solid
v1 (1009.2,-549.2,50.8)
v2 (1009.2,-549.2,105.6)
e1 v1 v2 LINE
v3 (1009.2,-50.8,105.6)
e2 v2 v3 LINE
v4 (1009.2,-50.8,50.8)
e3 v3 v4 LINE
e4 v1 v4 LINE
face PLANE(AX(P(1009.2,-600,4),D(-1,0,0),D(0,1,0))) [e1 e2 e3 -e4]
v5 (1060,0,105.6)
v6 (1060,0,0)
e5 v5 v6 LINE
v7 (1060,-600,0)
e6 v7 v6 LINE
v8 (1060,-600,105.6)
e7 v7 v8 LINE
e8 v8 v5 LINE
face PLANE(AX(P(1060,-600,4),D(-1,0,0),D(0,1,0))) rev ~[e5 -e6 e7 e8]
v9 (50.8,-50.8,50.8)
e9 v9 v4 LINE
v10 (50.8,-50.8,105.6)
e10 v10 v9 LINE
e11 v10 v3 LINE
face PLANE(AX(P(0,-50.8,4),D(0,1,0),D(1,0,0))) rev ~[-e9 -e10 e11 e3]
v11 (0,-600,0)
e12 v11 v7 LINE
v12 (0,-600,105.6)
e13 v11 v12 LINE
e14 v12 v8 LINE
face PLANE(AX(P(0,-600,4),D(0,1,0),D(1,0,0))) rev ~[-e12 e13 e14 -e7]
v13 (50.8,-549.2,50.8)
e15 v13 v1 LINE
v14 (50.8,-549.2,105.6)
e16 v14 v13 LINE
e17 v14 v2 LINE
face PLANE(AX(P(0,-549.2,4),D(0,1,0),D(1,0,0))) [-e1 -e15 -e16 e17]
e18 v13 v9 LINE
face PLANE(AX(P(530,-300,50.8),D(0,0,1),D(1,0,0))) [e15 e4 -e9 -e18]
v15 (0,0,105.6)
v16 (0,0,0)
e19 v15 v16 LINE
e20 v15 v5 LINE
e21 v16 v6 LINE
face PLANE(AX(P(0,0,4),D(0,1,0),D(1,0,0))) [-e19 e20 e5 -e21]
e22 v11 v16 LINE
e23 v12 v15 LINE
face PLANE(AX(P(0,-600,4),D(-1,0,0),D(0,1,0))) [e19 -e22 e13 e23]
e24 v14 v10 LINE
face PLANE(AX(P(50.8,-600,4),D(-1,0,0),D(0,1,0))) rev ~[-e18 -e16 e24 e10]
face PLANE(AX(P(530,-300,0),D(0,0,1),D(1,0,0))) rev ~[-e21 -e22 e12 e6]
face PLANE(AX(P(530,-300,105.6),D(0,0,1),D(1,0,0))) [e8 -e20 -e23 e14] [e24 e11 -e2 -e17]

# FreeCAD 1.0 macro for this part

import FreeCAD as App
import Part
import Sketcher
from FreeCAD import Vector


def faces_at(feature, points):
    """Names of the faces that lie closest to the given points."""
    faces = feature.Shape.Faces
    near = lambda p: min(range(len(faces)), key=lambda i: faces[i].distToShape(Part.Vertex(*p))[0])
    return sorted({f"Face{near(p) + 1}" for p in points})

doc = App.newDocument("Part")
body = doc.addObject("PartDesign::Body", "Body")

# Sketch on XY plane
sketch1 = body.newObject("Sketcher::SketchObject", "Sketch")
sketch1.AttachmentSupport = (doc.getObject("XY_Plane"), [""])
sketch1.MapMode = "FlatFace"
sketch1.addGeometry([
    Part.LineSegment(Vector(0, 0, 0), Vector(0, -600, 0)),
    Part.LineSegment(Vector(0, -600, 0), Vector(1060, -600, 0)),
    Part.LineSegment(Vector(1060, -600, 0), Vector(1060, 0, 0)),
    Part.LineSegment(Vector(1060, 0, 0), Vector(0, 0, 0)),
], False)
sketch1.addConstraint([
    Sketcher.Constraint("Coincident", 0, 2, 1, 1),
    Sketcher.Constraint("Coincident", 1, 2, 2, 1),
    Sketcher.Constraint("Coincident", 2, 2, 3, 1),
    Sketcher.Constraint("Coincident", 3, 2, 0, 1),
    Sketcher.Constraint("Vertical", 0),
    Sketcher.Constraint("Horizontal", 1),
    Sketcher.Constraint("Vertical", 2),
    Sketcher.Constraint("Horizontal", 3),
    Sketcher.Constraint("Coincident", 3, 2, -1, 1),
    Sketcher.Constraint("DistanceX", 1, 1, 1, 2, 1060.0),
    Sketcher.Constraint("DistanceY", 0, 2, 0, 1, 600.0),
])
pad1 = body.newObject("PartDesign::Pad", "Pad")
pad1.Profile = sketch1
pad1.Length = 4

# Sketch on XY plane
sketch2 = body.newObject("Sketcher::SketchObject", "Sketch001")
sketch2.AttachmentSupport = (doc.getObject("XY_Plane"), [""])
sketch2.MapMode = "FlatFace"
sketch2.AttachmentOffset = App.Placement(Vector(0, 0, 4), App.Rotation())
sketch2.addGeometry([
    Part.LineSegment(Vector(0, 0, 0), Vector(0, -600, 0)),
    Part.LineSegment(Vector(0, -600, 0), Vector(1060, -600, 0)),
    Part.LineSegment(Vector(1060, -600, 0), Vector(1060, 0, 0)),
    Part.LineSegment(Vector(1060, 0, 0), Vector(0, 0, 0)),
], False)
sketch2.addConstraint([
    Sketcher.Constraint("Coincident", 0, 2, 1, 1),
    Sketcher.Constraint("Coincident", 1, 2, 2, 1),
    Sketcher.Constraint("Coincident", 2, 2, 3, 1),
    Sketcher.Constraint("Coincident", 3, 2, 0, 1),
    Sketcher.Constraint("Vertical", 0),
    Sketcher.Constraint("Horizontal", 1),
    Sketcher.Constraint("Vertical", 2),
    Sketcher.Constraint("Horizontal", 3),
    Sketcher.Constraint("Coincident", 3, 2, -1, 1),
    Sketcher.Constraint("DistanceX", 1, 1, 1, 2, 1060.0),
    Sketcher.Constraint("DistanceY", 0, 2, 0, 1, 600.0),
])
pad2 = body.newObject("PartDesign::Pad", "Pad001")
pad2.Profile = sketch2
pad2.Length = 101.6
doc.recompute()

thickness = body.newObject("PartDesign::Thickness", "Thickness")
thickness.Base = (pad2, faces_at(pad2, [(530, -300, 105.6)]))
thickness.Value = 50.8
thickness.Reversed = True
thickness.Join = "Arc"

doc.recompute()
